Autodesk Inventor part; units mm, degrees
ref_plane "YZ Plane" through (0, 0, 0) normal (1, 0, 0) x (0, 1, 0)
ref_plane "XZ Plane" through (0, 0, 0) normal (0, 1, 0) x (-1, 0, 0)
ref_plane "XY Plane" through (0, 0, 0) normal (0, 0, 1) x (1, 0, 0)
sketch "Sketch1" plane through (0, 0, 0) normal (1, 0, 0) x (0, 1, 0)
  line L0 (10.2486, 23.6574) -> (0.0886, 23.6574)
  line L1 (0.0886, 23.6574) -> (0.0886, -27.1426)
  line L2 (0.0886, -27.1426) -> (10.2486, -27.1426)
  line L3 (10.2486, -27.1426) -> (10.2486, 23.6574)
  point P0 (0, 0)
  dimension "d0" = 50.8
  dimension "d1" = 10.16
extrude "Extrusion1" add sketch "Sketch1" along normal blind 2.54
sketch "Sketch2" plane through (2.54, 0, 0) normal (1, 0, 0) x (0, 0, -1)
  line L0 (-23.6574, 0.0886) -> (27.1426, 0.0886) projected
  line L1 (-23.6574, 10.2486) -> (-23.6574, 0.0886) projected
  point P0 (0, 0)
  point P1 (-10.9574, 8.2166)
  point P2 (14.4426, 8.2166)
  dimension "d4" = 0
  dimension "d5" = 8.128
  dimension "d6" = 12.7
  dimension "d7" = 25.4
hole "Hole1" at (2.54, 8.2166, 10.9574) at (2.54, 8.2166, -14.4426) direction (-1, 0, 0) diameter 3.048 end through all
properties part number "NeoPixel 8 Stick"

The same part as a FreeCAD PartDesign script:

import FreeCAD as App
import Part
import Sketcher
from FreeCAD import Vector
Q = App.Units.Quantity

doc = App.newDocument("Part")
body = doc.addObject("PartDesign::Body", "Body")

# Sketch on YZ plane
sketch1 = body.newObject("Sketcher::SketchObject", "Sketch")
sketch1.AttachmentSupport = (doc.getObject("YZ_Plane"), [""])
sketch1.MapMode = "FlatFace"
sketch1.addGeometry([
    Part.LineSegment(Vector(10, -27, 0), Vector(10, 24, 0)),
    Part.LineSegment(Vector(10, 24, 0), Vector(0, 24, 0)),
    Part.LineSegment(Vector(0, 24, 0), Vector(0, -27, 0)),
    Part.LineSegment(Vector(0, -27, 0), Vector(10, -27, 0)),
], False)
sketch1.addConstraint([
    Sketcher.Constraint("Coincident", 0, 2, 1, 1),
    Sketcher.Constraint("Coincident", 1, 2, 2, 1),
    Sketcher.Constraint("Coincident", 2, 2, 3, 1),
    Sketcher.Constraint("Coincident", 3, 2, 0, 1),
    Sketcher.Constraint("Vertical", 0),
    Sketcher.Constraint("Horizontal", 1),
    Sketcher.Constraint("Vertical", 2),
    Sketcher.Constraint("Horizontal", 3),
    Sketcher.Constraint("DistanceY", 0, 1, 0, 2, Q("2 in")),
    Sketcher.Constraint("DistanceX", 1, 2, 1, 1, Q("0.4 in")),
    Sketcher.Constraint("DistanceX", -1, 1, 0, 2, Q("0.4035 in")),
    Sketcher.Constraint("DistanceY", -1, 1, 0, 2, Q("0.9314 in")),
])
pad1 = body.newObject("PartDesign::Pad", "Pad")
pad1.Profile = sketch1
pad1.Length = Q("0.1 in")

# Sketch on YZ plane
sketch2 = body.newObject("Sketcher::SketchObject", "Sketch001")
sketch2.AttachmentSupport = (doc.getObject("YZ_Plane"), [""])
sketch2.MapMode = "FlatFace"
sketch2.AttachmentOffset = App.Placement(Vector(0, 0, 0.1 * 25.4), App.Rotation())
sketch2.addGeometry([
    Part.Circle(Vector(8.2, 11, 0), Vector(0, 0, 1), 1.5),
    Part.Circle(Vector(8.2, -14.4, 0), Vector(0, 0, 1), 1.5),
], False)
sketch2.addConstraint([
    Sketcher.Constraint("Equal", 0, 1),
    Sketcher.Constraint("Vertical", 0, 3, 1, 3),
    Sketcher.Constraint("Diameter", 0, Q("0.12 in")),
    Sketcher.Constraint("DistanceY", 1, 3, 0, 3, Q("1 in")),
    Sketcher.Constraint("DistanceX", -1, 1, 0, 3, Q("0.3235 in")),
    Sketcher.Constraint("DistanceY", -1, 1, 0, 3, Q("0.4314 in")),
])
doc.recompute()
hole = body.newObject("PartDesign::Hole", "Hole")
hole.Profile = sketch2
hole.ThreadType = "None"
hole.Diameter = Q("0.12 in")
hole.DepthType = "ThroughAll"

doc.recompute()
